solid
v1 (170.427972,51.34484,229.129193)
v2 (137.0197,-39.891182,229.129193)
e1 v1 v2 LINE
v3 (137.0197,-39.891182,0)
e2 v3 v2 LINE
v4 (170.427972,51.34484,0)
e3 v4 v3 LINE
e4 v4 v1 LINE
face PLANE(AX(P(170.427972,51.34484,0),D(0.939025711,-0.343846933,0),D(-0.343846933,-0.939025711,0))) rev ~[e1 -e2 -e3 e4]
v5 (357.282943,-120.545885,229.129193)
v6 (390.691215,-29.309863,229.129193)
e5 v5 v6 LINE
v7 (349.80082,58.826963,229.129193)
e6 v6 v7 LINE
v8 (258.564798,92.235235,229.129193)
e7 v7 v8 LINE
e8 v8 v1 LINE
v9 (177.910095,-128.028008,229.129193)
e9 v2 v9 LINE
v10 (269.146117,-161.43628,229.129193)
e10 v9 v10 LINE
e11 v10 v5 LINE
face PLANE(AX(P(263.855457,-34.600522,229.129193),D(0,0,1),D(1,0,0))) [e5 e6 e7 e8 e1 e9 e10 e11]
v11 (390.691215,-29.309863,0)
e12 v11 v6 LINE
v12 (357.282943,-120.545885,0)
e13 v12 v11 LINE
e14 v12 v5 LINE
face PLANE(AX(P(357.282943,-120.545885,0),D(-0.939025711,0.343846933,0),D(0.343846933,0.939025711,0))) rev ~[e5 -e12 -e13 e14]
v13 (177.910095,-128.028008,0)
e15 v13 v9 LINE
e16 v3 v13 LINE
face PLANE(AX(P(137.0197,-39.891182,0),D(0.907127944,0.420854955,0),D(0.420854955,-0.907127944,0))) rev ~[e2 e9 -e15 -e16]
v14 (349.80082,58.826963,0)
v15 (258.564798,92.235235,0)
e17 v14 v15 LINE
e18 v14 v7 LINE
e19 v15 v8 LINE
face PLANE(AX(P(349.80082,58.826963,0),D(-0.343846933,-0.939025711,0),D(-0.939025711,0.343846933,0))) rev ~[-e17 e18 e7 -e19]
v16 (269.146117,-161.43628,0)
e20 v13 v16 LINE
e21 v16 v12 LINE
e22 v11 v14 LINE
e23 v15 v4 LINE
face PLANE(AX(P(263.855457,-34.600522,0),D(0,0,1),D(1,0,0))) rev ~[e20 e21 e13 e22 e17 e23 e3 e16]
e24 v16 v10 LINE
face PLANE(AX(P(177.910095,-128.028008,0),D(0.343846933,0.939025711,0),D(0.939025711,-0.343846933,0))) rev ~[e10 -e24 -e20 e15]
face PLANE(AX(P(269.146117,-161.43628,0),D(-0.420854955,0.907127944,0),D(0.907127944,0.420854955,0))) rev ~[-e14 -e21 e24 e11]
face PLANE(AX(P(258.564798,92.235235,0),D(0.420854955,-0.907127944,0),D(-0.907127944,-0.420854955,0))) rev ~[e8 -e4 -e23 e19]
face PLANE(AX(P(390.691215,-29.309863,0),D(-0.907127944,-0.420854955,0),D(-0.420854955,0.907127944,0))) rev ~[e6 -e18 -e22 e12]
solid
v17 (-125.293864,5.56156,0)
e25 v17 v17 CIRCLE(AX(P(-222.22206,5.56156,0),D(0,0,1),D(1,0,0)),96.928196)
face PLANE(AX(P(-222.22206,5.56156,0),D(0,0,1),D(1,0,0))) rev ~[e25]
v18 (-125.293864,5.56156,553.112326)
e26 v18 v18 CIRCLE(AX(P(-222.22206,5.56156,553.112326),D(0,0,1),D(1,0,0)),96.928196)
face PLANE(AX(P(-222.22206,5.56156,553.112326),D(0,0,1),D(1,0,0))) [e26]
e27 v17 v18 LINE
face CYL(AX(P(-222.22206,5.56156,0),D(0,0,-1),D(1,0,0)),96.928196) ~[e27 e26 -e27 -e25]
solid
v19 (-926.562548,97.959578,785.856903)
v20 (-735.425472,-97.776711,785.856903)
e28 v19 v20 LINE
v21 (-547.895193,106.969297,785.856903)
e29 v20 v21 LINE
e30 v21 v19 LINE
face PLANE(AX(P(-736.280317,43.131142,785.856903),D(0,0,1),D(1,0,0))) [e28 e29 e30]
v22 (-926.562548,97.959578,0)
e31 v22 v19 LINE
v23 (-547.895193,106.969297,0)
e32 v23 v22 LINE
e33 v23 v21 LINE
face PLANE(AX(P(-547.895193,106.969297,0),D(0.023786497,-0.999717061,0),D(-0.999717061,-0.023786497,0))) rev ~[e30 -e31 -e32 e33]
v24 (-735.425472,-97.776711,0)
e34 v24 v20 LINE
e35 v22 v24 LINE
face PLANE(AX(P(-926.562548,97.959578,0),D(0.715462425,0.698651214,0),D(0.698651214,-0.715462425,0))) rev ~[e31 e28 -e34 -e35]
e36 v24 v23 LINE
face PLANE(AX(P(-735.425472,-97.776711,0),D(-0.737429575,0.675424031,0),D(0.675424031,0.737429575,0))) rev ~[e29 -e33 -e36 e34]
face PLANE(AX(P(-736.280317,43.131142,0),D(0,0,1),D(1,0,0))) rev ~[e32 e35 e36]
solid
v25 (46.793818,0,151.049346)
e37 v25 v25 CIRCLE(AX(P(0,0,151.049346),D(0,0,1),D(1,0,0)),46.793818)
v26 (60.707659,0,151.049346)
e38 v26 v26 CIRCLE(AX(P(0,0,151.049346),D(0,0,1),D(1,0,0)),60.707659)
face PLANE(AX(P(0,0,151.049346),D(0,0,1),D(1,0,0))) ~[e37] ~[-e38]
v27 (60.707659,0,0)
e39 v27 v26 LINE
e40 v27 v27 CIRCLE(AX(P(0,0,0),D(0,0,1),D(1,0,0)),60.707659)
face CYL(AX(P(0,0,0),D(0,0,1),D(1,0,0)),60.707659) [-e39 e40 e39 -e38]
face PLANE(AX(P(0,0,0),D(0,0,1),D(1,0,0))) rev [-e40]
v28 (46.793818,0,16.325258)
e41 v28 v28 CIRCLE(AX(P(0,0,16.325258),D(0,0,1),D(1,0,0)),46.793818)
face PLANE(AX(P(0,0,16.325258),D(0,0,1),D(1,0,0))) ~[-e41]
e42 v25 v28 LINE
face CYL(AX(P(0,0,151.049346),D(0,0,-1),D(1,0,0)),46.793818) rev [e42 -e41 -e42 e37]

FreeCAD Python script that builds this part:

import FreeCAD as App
import Part
import Sketcher
from FreeCAD import Vector


def add_polygon(sketch, points):
    """Adds a closed chain of lines whose ends are joined by coincident constraints."""
    first, n = sketch.GeometryCount, len(points)
    for a, b in zip(points, points[1:] + points[:1]):
        sketch.addGeometry(Part.LineSegment(App.Vector(*a, 0), App.Vector(*b, 0)), False)
    for i in range(n):
        sketch.addConstraint(Sketcher.Constraint("Coincident", first + i, 2, first + (i + 1) % n, 1))

doc = App.newDocument("Part")
body = doc.addObject("PartDesign::Body", "Body")

sketch1 = doc.addObject("Sketcher::SketchObject", "Sketch")
body.addObject(sketch1)
sketch1.AttachmentSupport = (doc.XZ_Plane, [""])
sketch1.MapMode = "FlatFace"
add_polygon(sketch1, [(61, 151), (47, 151), (47, 16), (0, 16), (0, 0), (61, 0)])
sketch1.addConstraint([
    Sketcher.Constraint("Horizontal", 0),
    Sketcher.Constraint("Vertical", 1),
    Sketcher.Constraint("Horizontal", 2),
    Sketcher.Constraint("Vertical", 3),
    Sketcher.Constraint("Horizontal", 4),
    Sketcher.Constraint("Vertical", 5),
    Sketcher.Constraint("Coincident", 3, 2, -1, 1),
    Sketcher.Constraint("DistanceX", 0, 2, 0, 1, 13.913841),
    Sketcher.Constraint("DistanceX", 4, 1, 4, 2, 60.707659),
    Sketcher.Constraint("DistanceY", 1, 2, 1, 1, 134.724088),
    Sketcher.Constraint("DistanceY", 3, 2, 3, 1, 16.325258),
])
revolution = doc.addObject("PartDesign::Revolution", "Revolution")
body.addObject(revolution)
revolution.Profile = sketch1
revolution.ReferenceAxis = (sketch1, ["V_Axis"])
revolution.Angle = 360
body2 = doc.addObject("PartDesign::Body", "Body001")

sketch2 = doc.addObject("Sketcher::SketchObject", "Sketch001")
body2.addObject(sketch2)
sketch2.AttachmentSupport = (doc.getObject("XY_Plane001"), [""])
sketch2.MapMode = "FlatFace"
add_polygon(sketch2, [(357, -121), (391, -29), (350, 59), (259, 92), (170, 51), (137, -40), (178, -128), (269, -161)])
sketch2.addConstraint([
    Sketcher.Constraint("Perpendicular", 0, 2),
    Sketcher.Constraint("Perpendicular", 1, 3),
    Sketcher.Constraint("Perpendicular", 2, 4),
    Sketcher.Constraint("Perpendicular", 3, 5),
    Sketcher.Constraint("Perpendicular", 4, 6),
    Sketcher.Constraint("Perpendicular", 5, 7),
    Sketcher.Constraint("Equal", 0, 1),
    Sketcher.Constraint("Equal", 1, 2),
    Sketcher.Constraint("Equal", 2, 3),
    Sketcher.Constraint("Equal", 3, 4),
    Sketcher.Constraint("Equal", 4, 5),
    Sketcher.Constraint("DistanceX", -1, 1, 2, 2, 258.564798),
    Sketcher.Constraint("DistanceX", -1, 1, 4, 2, 137.0197),
    Sketcher.Constraint("DistanceX", -1, 1, 1, 2, 349.80082),
    Sketcher.Constraint("DistanceY", -1, 1, 3, 2, 51.34484),
    Sketcher.Constraint("DistanceY", 5, 2, -1, 1, 128.028008),
])
pad1 = doc.addObject("PartDesign::Pad", "Pad")
body2.addObject(pad1)
pad1.Profile = sketch2
pad1.Length = 229.129193
body3 = doc.addObject("PartDesign::Body", "Body002")

sketch3 = doc.addObject("Sketcher::SketchObject", "Sketch002")
body3.addObject(sketch3)
sketch3.AttachmentSupport = (doc.getObject("XY_Plane002"), [""])
sketch3.MapMode = "FlatFace"
sketch3.addGeometry(Part.Circle(Vector(-222, 6, 0), Vector(0, 0, 1), 97), False)
sketch3.addConstraint([
    Sketcher.Constraint("Diameter", 0, 193.856392),
    Sketcher.Constraint("DistanceX", 0, 3, -1, 1, 222.22206),
    Sketcher.Constraint("DistanceY", -1, 1, 0, 3, 5.56156),
])
pad2 = doc.addObject("PartDesign::Pad", "Pad001")
body3.addObject(pad2)
pad2.Profile = sketch3
pad2.Length = 553.112326
body4 = doc.addObject("PartDesign::Body", "Body003")

sketch4 = doc.addObject("Sketcher::SketchObject", "Sketch003")
body4.addObject(sketch4)
sketch4.AttachmentSupport = (doc.getObject("XY_Plane003"), [""])
sketch4.MapMode = "FlatFace"
add_polygon(sketch4, [(-927, 98), (-735, -98), (-548, 107)])
sketch4.addConstraint([
    Sketcher.Constraint("Distance", 0, 273.58011),
    Sketcher.Constraint("Distance", 1, 277.648219),
    Sketcher.Constraint("DistanceX", 0, 2, -1, 1, 735.425472),
    Sketcher.Constraint("DistanceY", 0, 2, -1, 1, 97.776711),
    Sketcher.Constraint("DistanceX", 2, 2, -1, 1, 926.562548),
    Sketcher.Constraint("DistanceX", 0, 2, 1, 2, 187.530279),
])
pad3 = doc.addObject("PartDesign::Pad", "Pad002")
body4.addObject(pad3)
pad3.Profile = sketch4
pad3.Length = 785.856903

doc.recompute()
